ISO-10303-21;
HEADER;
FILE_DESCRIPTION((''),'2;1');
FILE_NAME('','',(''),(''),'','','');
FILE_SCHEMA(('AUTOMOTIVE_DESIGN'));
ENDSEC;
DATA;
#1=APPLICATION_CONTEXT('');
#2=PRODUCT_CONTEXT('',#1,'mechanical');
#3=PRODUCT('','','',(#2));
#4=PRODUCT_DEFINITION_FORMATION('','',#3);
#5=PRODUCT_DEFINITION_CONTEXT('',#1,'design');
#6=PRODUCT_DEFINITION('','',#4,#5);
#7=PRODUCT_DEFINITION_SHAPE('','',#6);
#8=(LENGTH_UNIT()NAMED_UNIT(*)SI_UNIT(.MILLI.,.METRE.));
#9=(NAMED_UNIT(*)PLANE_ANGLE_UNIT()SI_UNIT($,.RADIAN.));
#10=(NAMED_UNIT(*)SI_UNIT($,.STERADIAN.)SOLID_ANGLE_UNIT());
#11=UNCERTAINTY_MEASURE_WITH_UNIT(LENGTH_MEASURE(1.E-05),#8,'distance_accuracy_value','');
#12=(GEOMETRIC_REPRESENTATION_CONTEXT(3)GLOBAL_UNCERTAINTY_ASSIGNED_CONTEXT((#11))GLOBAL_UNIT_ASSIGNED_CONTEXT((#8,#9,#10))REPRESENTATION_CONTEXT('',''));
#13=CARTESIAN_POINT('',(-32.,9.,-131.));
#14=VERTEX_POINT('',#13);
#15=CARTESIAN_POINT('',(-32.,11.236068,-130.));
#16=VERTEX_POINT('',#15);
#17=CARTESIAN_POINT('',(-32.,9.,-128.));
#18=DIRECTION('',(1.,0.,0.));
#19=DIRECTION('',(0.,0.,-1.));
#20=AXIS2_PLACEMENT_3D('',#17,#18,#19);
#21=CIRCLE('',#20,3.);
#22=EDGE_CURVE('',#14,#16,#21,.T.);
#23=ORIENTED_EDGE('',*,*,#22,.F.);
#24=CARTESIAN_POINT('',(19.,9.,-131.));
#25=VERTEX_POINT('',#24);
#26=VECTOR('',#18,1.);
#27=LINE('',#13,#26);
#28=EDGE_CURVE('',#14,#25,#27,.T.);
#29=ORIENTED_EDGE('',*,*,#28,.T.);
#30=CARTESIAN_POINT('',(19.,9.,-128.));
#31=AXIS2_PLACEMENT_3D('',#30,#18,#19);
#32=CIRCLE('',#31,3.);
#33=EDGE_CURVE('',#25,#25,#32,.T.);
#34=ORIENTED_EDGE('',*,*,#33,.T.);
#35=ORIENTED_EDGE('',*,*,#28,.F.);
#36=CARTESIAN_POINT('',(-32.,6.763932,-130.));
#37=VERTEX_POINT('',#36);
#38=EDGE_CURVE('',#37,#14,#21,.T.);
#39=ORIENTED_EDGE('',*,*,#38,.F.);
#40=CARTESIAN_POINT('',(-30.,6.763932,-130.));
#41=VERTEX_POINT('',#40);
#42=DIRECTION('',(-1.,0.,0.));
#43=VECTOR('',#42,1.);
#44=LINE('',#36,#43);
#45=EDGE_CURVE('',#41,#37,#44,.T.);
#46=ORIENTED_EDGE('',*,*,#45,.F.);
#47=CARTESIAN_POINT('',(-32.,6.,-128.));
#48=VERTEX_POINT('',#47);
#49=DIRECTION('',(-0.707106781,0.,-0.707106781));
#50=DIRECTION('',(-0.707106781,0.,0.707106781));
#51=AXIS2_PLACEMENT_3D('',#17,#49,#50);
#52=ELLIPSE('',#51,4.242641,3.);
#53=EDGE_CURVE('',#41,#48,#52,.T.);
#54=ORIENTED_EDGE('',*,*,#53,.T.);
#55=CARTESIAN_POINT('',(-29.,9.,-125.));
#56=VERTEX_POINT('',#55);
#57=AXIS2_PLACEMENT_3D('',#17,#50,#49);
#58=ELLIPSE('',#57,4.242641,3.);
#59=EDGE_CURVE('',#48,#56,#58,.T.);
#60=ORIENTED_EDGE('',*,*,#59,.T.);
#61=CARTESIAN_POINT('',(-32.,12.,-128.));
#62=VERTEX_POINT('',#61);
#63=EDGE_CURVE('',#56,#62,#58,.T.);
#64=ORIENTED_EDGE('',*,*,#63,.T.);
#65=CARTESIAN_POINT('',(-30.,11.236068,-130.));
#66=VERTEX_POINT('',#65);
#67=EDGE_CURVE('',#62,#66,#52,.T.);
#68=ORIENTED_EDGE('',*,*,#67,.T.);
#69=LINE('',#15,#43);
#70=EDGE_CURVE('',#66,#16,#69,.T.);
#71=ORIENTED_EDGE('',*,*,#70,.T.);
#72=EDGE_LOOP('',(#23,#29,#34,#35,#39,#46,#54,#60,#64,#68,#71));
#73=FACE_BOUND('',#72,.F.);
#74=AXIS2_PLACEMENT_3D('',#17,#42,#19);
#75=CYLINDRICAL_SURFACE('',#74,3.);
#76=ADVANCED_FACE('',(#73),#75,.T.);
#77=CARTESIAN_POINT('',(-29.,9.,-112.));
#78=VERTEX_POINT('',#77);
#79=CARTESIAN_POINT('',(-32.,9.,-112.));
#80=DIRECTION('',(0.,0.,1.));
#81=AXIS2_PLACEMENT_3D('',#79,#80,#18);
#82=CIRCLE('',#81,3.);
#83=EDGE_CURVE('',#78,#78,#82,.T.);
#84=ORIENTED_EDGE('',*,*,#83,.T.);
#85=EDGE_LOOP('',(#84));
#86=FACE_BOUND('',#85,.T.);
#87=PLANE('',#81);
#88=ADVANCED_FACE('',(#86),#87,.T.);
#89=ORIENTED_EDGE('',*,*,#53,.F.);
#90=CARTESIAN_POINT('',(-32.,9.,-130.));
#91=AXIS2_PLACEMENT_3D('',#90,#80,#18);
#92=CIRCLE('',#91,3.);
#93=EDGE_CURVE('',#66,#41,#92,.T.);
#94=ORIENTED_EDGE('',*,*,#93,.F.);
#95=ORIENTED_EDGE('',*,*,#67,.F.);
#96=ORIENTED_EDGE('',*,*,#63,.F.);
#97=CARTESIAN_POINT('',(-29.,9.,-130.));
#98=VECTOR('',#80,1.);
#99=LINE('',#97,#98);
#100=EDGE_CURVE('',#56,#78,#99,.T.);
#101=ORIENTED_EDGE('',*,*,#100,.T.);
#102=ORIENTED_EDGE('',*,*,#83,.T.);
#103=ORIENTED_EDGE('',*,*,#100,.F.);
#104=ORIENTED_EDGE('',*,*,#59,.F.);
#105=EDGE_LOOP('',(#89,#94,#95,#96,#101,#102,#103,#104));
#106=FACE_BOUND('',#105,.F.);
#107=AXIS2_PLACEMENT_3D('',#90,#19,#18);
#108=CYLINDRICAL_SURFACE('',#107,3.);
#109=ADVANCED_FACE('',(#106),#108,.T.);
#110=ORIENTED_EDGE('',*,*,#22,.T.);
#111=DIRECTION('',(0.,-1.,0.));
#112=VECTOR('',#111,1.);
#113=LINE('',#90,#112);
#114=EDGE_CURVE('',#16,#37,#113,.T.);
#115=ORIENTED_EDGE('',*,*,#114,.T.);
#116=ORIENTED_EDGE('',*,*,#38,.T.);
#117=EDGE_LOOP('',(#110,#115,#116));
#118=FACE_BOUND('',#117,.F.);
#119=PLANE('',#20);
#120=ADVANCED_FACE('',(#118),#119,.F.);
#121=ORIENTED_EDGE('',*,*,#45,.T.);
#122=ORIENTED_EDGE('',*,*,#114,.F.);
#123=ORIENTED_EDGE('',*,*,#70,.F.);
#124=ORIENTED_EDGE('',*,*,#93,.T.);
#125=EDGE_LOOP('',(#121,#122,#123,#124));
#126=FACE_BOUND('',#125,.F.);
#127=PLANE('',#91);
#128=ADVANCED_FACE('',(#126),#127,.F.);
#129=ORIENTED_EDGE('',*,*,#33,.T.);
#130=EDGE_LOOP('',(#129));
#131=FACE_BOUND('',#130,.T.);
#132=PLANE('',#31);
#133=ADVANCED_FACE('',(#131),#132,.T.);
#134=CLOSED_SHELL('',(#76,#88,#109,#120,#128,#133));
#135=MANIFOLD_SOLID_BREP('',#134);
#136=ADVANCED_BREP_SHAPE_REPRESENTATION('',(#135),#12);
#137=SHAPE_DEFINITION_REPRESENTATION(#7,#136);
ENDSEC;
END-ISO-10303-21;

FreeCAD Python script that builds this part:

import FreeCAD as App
import Part
import Sketcher
from FreeCAD import Vector
Q = App.Units.Quantity

doc = App.newDocument("Part")
params = doc.addObject("Spreadsheet::Sheet", "Params")
for row, (alias, value) in enumerate([
    ("sketch1_diameter", "6 mm"),
    ("pad1_length", "18 mm"),
    ("sketch2_diameter", "6 mm"),
    ("pad2_length", "51 mm"),
], start=1):
    params.set(f"A{row}", alias)
    params.set(f"B{row}", "=" + value)
    params.setAlias(f"B{row}", alias)

body = doc.addObject("PartDesign::Body", "Body")

sketch1 = body.newObject("Sketcher::SketchObject", "Sketch")
sketch1.AttachmentSupport = (doc.getObject("XY_Plane"), [""])
sketch1.MapMode = "FlatFace"
sketch1.AttachmentOffset = App.Placement(Vector(0, 0, -130), App.Rotation())
sketch1.addGeometry(Part.Circle(Vector(-32, 9, 0), Vector(0, 0, 1), 3), False)
sketch1.addConstraint([
    Sketcher.Constraint("Diameter", 0, Q("6 mm")),
    Sketcher.Constraint("DistanceX", 0, 3, -1, 1, Q("32 mm")),
    Sketcher.Constraint("DistanceY", -1, 1, 0, 3, Q("9 mm")),
])
sketch1.setExpression("Constraints[0]", "Params.sketch1_diameter")
pad1 = body.newObject("PartDesign::Pad", "Pad")
pad1.Profile = sketch1
pad1.setExpression("Length", "Params.pad1_length")
body2 = doc.addObject("PartDesign::Body", "Body001")

sketch2 = body2.newObject("Sketcher::SketchObject", "Sketch001")
sketch2.AttachmentSupport = (doc.getObject("YZ_Plane001"), [""])
sketch2.MapMode = "FlatFace"
sketch2.AttachmentOffset = App.Placement(Vector(0, 0, -32), App.Rotation())
sketch2.addGeometry(Part.Circle(Vector(9, -128, 0), Vector(0, 0, 1), 3), False)
sketch2.addConstraint([
    Sketcher.Constraint("Diameter", 0, Q("6 mm")),
    Sketcher.Constraint("DistanceX", -1, 1, 0, 3, Q("9 mm")),
    Sketcher.Constraint("DistanceY", 0, 3, -1, 1, Q("128 mm")),
])
sketch2.setExpression("Constraints[0]", "Params.sketch2_diameter")
pad2 = body2.newObject("PartDesign::Pad", "Pad001")
pad2.Profile = sketch2
pad2.setExpression("Length", "Params.pad2_length")
doc.recompute()

boolean = body2.newObject("PartDesign::Boolean", "Boolean")
boolean.Type = "Fuse"
boolean.addObjects([body])

doc.recompute()
